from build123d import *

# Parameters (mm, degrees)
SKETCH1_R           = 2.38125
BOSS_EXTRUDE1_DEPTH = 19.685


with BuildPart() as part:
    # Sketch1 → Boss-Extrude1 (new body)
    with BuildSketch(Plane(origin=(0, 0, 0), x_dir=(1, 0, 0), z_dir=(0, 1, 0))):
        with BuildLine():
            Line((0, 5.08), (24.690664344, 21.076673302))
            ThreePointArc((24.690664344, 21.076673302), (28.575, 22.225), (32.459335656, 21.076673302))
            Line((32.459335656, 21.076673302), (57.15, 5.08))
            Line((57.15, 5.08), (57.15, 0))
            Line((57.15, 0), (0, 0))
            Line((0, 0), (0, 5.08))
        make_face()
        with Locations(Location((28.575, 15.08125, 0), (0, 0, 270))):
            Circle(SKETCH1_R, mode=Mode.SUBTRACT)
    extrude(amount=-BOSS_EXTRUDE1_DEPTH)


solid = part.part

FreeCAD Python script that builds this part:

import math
import FreeCAD as App
import Part
import Sketcher

V = App.Vector
Q = App.Units.Quantity

doc = App.newDocument("Part")
params = doc.addObject("Spreadsheet::Sheet", "Params")
for row, (alias, value) in enumerate([
    ("sketch1_diameter", "0.1875 in"),
    ("sketch1_height", "0.2 in"),
    ("sketch1_radius", "0.28125 in"),
    ("sketch1_width", "2.25 in"),
    ("pad1_length", "0.775 in"),
], start=1):
    params.set(f"A{row}", alias)
    params.set(f"B{row}", "=" + value)
    params.setAlias(f"B{row}", alias)

body = doc.addObject("PartDesign::Body", "Body")

# Sketch on XZ plane
sketch1 = body.newObject("Sketcher::SketchObject", "Sketch")
sketch1.AttachmentSupport = (doc.getObject("XZ_Plane"), [""])
sketch1.MapMode = "FlatFace"
sketch1.addGeometry(Part.LineSegment(V(24.7, -21.1, 0), V(0, -5.1, 0)), False)
sketch1.addGeometry(Part.LineSegment(V(0, -5.1, 0), V(0, 0, 0)), False)
sketch1.addGeometry(Part.LineSegment(V(0, 0, 0), V(57.1, 0, 0)), False)
sketch1.addGeometry(Part.LineSegment(V(57.1, 0, 0), V(57.1, -5.1, 0)), False)
sketch1.addGeometry(Part.LineSegment(V(57.1, -5.1, 0), V(32.5, -21.1, 0)), False)
sketch1.addGeometry(Part.ArcOfCircle(Part.Circle(V(28.6, -15.1, 0), V(0, 0, 1), 7.1), math.radians(-123), math.radians(-57)), False)
sketch1.addGeometry(Part.Circle(V(28.6, -15.1, 0), V(0, 0, 1), 2.4), False)
sketch1.addConstraint(Sketcher.Constraint("Coincident", 0, 2, 1, 1))
sketch1.addConstraint(Sketcher.Constraint("Coincident", 1, 2, 2, 1))
sketch1.addConstraint(Sketcher.Constraint("Coincident", 2, 2, 3, 1))
sketch1.addConstraint(Sketcher.Constraint("Coincident", 3, 2, 4, 1))
sketch1.addConstraint(Sketcher.Constraint("Tangent", 4, 2, 5, 2))
sketch1.addConstraint(Sketcher.Constraint("Tangent", 5, 1, 0, 1))
sketch1.addConstraint(Sketcher.Constraint("Vertical", 1))
sketch1.addConstraint(Sketcher.Constraint("Horizontal", 2))
sketch1.addConstraint(Sketcher.Constraint("Vertical", 3))
sketch1.addConstraint(Sketcher.Constraint("Coincident", 1, 2, -1, 1))
sketch1.addConstraint(Sketcher.Constraint("Coincident", 6, 3, 5, 3))
sketch1.addConstraint(Sketcher.Constraint("Horizontal", 0, 2, 3, 2))
sketch1.addConstraint(Sketcher.Constraint("Horizontal", 4, 2, 5, 1))
sketch1.addConstraint(Sketcher.Constraint("Diameter", 6, Q("0.1875 in")))
sketch1.addConstraint(Sketcher.Constraint("DistanceY", 1, 1, 1, 2, Q("0.2 in")))
sketch1.addConstraint(Sketcher.Constraint("Radius", 5, Q("0.28125 in")))
sketch1.addConstraint(Sketcher.Constraint("DistanceX", 2, 1, 2, 2, Q("2.25 in")))
sketch1.addConstraint(Sketcher.Constraint("DistanceY", 5, 3, -1, 1, Q("0.59375 in")))
sketch1.setExpression("Constraints[13]", "Params.sketch1_diameter")
sketch1.setExpression("Constraints[14]", "Params.sketch1_height")
sketch1.setExpression("Constraints[15]", "Params.sketch1_radius")
sketch1.setExpression("Constraints[16]", "Params.sketch1_width")
pad1 = body.newObject("PartDesign::Pad", "Pad")
pad1.Profile = sketch1
pad1.setExpression("Length", "Params.pad1_length")

doc.recompute()
